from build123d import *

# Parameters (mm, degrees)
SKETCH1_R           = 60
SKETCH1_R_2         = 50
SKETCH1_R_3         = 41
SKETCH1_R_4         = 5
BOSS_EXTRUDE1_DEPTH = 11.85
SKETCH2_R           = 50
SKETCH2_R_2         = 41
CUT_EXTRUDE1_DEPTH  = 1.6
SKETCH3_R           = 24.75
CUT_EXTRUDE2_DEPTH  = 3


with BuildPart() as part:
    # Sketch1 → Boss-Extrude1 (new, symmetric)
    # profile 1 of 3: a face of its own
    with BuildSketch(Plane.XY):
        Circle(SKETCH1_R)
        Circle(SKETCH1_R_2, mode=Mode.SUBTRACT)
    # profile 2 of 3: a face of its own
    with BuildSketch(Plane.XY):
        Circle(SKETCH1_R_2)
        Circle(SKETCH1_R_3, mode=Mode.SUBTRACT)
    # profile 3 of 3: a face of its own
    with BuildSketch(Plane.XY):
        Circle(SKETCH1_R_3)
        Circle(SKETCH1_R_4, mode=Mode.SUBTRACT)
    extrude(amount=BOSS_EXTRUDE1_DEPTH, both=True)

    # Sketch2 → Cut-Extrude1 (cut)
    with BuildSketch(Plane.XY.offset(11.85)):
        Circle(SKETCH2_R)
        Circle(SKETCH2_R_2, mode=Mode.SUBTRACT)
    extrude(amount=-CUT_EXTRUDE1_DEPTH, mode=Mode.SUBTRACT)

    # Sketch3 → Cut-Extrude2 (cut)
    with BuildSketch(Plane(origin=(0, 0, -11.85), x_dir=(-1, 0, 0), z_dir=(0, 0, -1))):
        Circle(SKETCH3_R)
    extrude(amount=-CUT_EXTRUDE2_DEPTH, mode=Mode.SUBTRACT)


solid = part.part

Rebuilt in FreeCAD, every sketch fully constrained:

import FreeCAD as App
import Part
import Sketcher
Q = App.Units.Quantity

doc = App.newDocument("Part")
body = doc.addObject("PartDesign::Body", "Body")

sketch1 = body.newObject("Sketcher::SketchObject", "Sketch")
sketch1.AttachmentSupport = (doc.getObject("XY_Plane"), [""])
sketch1.MapMode = "FlatFace"
sketch1.addGeometry([
    Part.Circle(App.Vector(0, 0, 0), App.Vector(0, 0, 1), 60),
    Part.Circle(App.Vector(0, 0, 0), App.Vector(0, 0, 1), 5),
], False)
sketch1.addConstraint([
    Sketcher.Constraint("Coincident", 0, 3, -1, 1),
    Sketcher.Constraint("Coincident", 1, 3, -1, 1),
    Sketcher.Constraint("Diameter", 0, Q("120 mm")),
    Sketcher.Constraint("Diameter", 1, Q("10 mm")),
])
pad1 = body.newObject("PartDesign::Pad", "Pad")
pad1.Profile = sketch1
pad1.Length = 23.7
pad1.Midplane = True

sketch2 = body.newObject("Sketcher::SketchObject", "Sketch001")
sketch2.AttachmentSupport = (doc.getObject("XY_Plane"), [""])
sketch2.MapMode = "FlatFace"
sketch2.AttachmentOffset = App.Placement(App.Vector(0, 0, 11.85), App.Rotation())
sketch2.addGeometry([
    Part.Circle(App.Vector(0, 0, 0), App.Vector(0, 0, 1), 50),
    Part.Circle(App.Vector(0, 0, 0), App.Vector(0, 0, 1), 41),
], False)
sketch2.addConstraint([
    Sketcher.Constraint("Coincident", 0, 3, -1, 1),
    Sketcher.Constraint("Coincident", 1, 3, -1, 1),
    Sketcher.Constraint("Diameter", 0, Q("100 mm")),
    Sketcher.Constraint("Diameter", 1, Q("82 mm")),
])
pocket1 = body.newObject("PartDesign::Pocket", "Pocket")
pocket1.Profile = sketch2
pocket1.Length = 1.6

sketch3 = body.newObject("Sketcher::SketchObject", "Sketch002")
sketch3.AttachmentSupport = (doc.getObject("XY_Plane"), [""])
sketch3.MapMode = "FlatFace"
sketch3.AttachmentOffset = App.Placement(App.Vector(0, 0, -11.85), App.Rotation())
sketch3.addGeometry(Part.Circle(App.Vector(0, 0, 0), App.Vector(0, 0, 1), 25), False)
sketch3.addConstraint([
    Sketcher.Constraint("Coincident", 0, 3, -1, 1),
    Sketcher.Constraint("Diameter", 0, Q("49.5 mm")),
])
pocket2 = body.newObject("PartDesign::Pocket", "Pocket001")
pocket2.Profile = sketch3
pocket2.Length = 3
pocket2.Reversed = True

doc.recompute()
